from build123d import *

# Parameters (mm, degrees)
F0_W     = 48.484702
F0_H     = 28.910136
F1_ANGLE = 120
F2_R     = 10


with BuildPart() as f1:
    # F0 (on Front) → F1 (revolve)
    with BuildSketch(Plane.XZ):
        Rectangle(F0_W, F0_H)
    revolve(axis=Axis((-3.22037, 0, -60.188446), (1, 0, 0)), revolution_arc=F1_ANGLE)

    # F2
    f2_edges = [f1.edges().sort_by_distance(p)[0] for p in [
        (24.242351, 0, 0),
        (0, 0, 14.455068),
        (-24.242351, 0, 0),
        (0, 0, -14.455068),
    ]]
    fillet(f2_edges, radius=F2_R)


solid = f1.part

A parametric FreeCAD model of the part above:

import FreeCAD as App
import Part
import Sketcher
from FreeCAD import Vector
Q = App.Units.Quantity


def edges_at(feature, points):
    """Names of the edges that pass closest to the given points."""
    edges = feature.Shape.Edges
    near = lambda p: min(range(len(edges)), key=lambda i: edges[i].distToShape(Part.Vertex(*p))[0])
    return sorted({f"Edge{near(p) + 1}" for p in points})

doc = App.newDocument("Part")
body = doc.addObject("PartDesign::Body", "Body")

# Sketch on XZ plane
sketch1 = doc.addObject("Sketcher::SketchObject", "Sketch")
body.addObject(sketch1)
sketch1.AttachmentSupport = (doc.XZ_Plane, [""])
sketch1.MapMode = "FlatFace"
sketch1.addGeometry([
    Part.LineSegment(Vector(-24.242351, 14.455068, 0), Vector(-24.242351, -14.455068, 0)),
    Part.LineSegment(Vector(-24.242351, -14.455068, 0), Vector(24.242351, -14.455068, 0)),
    Part.LineSegment(Vector(24.242351, -14.455068, 0), Vector(24.242351, 14.455068, 0)),
    Part.LineSegment(Vector(24.242351, 14.455068, 0), Vector(-24.242351, 14.455068, 0)),
], False)
sketch1.addGeometry(Part.LineSegment(Vector(-24.242351, -60.188446, 0), Vector(24.242351, -60.188446, 0)), True)  # axis
sketch1.addConstraint([
    Sketcher.Constraint("Coincident", 0, 2, 1, 1),
    Sketcher.Constraint("Coincident", 1, 2, 2, 1),
    Sketcher.Constraint("Coincident", 2, 2, 3, 1),
    Sketcher.Constraint("Coincident", 3, 2, 0, 1),
    Sketcher.Constraint("Vertical", 0),
    Sketcher.Constraint("Horizontal", 1),
    Sketcher.Constraint("Vertical", 2),
    Sketcher.Constraint("Horizontal", 3),
    Sketcher.Constraint("Horizontal", 4),
    Sketcher.Constraint("Symmetric", 0, 2, 2, 2, -1, 1),
    Sketcher.Constraint("Vertical", 3, 2, 4, 1),
    Sketcher.Constraint("Vertical", 2, 2, 4, 2),
    Sketcher.Constraint("DistanceX", 1, 1, 1, 2, Q("48.484702 mm")),
    Sketcher.Constraint("DistanceY", 0, 2, 0, 1, Q("28.910136 mm")),
    Sketcher.Constraint("DistanceY", 4, 1, 0, 2, Q("45.733378 mm")),
])
revolution = doc.addObject("PartDesign::Revolution", "Revolution")
body.addObject(revolution)
revolution.Profile = sketch1
revolution.ReferenceAxis = (sketch1, ["Axis0"])
revolution.Angle = 120
doc.recompute()

fillet = doc.addObject("PartDesign::Fillet", "Fillet")
body.addObject(fillet)
fillet.Base = (revolution, edges_at(revolution, [
    (24.242, 0, 0),
    (0, 0, 14.455),
    (-24.242, 0, 0),
    (0, 0, -14.455),
]))
fillet.Radius = 10

doc.recompute()
